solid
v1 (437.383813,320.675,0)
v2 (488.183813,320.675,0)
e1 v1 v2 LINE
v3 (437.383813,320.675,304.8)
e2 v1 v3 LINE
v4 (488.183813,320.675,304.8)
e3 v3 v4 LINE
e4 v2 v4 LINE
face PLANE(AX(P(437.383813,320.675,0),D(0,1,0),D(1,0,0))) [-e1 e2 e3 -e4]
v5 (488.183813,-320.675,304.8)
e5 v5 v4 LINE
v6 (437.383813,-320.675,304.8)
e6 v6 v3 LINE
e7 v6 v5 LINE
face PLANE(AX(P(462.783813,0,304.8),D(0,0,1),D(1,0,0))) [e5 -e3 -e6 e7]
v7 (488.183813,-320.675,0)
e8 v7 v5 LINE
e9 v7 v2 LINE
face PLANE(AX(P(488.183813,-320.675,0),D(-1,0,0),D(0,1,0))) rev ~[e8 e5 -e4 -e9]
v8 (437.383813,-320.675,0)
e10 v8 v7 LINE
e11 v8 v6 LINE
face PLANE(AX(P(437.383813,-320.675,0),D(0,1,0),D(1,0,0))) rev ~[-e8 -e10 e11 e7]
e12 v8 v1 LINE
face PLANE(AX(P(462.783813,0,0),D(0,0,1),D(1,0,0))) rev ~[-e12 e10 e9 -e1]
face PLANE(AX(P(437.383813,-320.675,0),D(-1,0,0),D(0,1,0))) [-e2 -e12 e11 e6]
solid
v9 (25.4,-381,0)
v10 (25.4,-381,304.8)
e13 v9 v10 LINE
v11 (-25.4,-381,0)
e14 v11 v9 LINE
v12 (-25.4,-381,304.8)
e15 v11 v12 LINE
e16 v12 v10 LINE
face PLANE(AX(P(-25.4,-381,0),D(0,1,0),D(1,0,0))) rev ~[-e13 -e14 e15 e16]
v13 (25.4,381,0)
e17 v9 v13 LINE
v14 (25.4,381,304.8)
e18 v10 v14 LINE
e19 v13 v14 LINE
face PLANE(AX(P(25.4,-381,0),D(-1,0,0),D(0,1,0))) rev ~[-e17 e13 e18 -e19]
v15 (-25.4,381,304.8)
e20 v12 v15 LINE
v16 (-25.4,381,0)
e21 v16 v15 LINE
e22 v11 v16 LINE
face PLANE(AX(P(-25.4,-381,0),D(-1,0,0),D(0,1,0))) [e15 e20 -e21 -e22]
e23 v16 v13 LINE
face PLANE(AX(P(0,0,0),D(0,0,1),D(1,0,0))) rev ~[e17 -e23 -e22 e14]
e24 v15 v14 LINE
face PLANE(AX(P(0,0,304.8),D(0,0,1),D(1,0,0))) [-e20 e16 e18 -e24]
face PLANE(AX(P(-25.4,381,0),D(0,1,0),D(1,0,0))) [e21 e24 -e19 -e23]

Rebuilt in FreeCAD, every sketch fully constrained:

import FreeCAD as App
import Part
import Sketcher

V = App.Vector
Q = App.Units.Quantity


def add_polygon(sketch, points):
    """Adds a closed chain of lines whose ends are joined by coincident constraints."""
    first, n = sketch.GeometryCount, len(points)
    for a, b in zip(points, points[1:] + points[:1]):
        sketch.addGeometry(Part.LineSegment(App.Vector(*a, 0), App.Vector(*b, 0)), False)
    for i in range(n):
        sketch.addConstraint(Sketcher.Constraint("Coincident", first + i, 2, first + (i + 1) % n, 1))

doc = App.newDocument("Part")
body = doc.addObject("PartDesign::Body", "Body")
body.AllowCompound = True

sketch1 = body.newObject("Sketcher::SketchObject", "Sketch")
sketch1.AttachmentSupport = (doc.getObject("XY_Plane"), [""])
sketch1.MapMode = "FlatFace"
add_polygon(sketch1, [(-25.4, 381), (-25.4, -381), (25.4, -381), (25.4, 381)])
add_polygon(sketch1, [(437.383813, 320.675), (437.383813, -320.675), (488.183813, -320.675), (488.183813, 320.675)])
sketch1.addConstraint(Sketcher.Constraint("Vertical", 0))
sketch1.addConstraint(Sketcher.Constraint("Horizontal", 1))
sketch1.addConstraint(Sketcher.Constraint("Vertical", 2))
sketch1.addConstraint(Sketcher.Constraint("Horizontal", 3))
sketch1.addConstraint(Sketcher.Constraint("Vertical", 4))
sketch1.addConstraint(Sketcher.Constraint("Horizontal", 5))
sketch1.addConstraint(Sketcher.Constraint("Vertical", 6))
sketch1.addConstraint(Sketcher.Constraint("Horizontal", 7))
sketch1.addConstraint(Sketcher.Constraint("Symmetric", 0, 2, 2, 2, -1, 1))
sketch1.addConstraint(Sketcher.Constraint("Equal", 3, 5))
sketch1.addConstraint(Sketcher.Constraint("DistanceX", 1, 1, 1, 2, Q("2 in")))
sketch1.addConstraint(Sketcher.Constraint("DistanceY", 0, 2, 0, 1, Q("30 in")))
sketch1.addConstraint(Sketcher.Constraint("DistanceY", 4, 2, 4, 1, Q("25.25 in")))
sketch1.addConstraint(Sketcher.Constraint("DistanceY", 4, 2, -1, 1, Q("12.625 in")))
sketch1.addConstraint(Sketcher.Constraint("DistanceX", -1, 1, 4, 2, 437.383813))
pad1 = body.newObject("PartDesign::Pad", "Pad")
pad1.Profile = sketch1
pad1.Length = Q("12 in")

doc.recompute()
